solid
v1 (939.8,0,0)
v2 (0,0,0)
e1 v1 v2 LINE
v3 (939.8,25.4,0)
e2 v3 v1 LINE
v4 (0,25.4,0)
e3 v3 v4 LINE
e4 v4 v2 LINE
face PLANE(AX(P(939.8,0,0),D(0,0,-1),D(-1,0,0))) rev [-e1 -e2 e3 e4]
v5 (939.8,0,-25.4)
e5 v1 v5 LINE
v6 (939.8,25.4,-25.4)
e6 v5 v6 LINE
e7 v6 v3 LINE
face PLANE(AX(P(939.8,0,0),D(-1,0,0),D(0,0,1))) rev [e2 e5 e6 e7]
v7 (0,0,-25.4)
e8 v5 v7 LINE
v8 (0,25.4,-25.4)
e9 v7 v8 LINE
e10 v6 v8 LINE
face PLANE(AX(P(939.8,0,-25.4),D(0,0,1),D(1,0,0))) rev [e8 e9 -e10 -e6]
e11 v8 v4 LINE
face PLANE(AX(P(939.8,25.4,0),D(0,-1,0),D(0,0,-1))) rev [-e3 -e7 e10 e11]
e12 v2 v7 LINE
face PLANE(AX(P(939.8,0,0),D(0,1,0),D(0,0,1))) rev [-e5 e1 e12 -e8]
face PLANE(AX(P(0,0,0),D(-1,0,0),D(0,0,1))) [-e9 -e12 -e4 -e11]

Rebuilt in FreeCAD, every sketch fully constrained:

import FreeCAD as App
import Part
import Sketcher
Q = App.Units.Quantity

doc = App.newDocument("Part")
body = doc.addObject("PartDesign::Body", "Body")

# Sketch on YZ plane
sketch1 = body.newObject("Sketcher::SketchObject", "Sketch")
sketch1.AttachmentSupport = (doc.getObject("YZ_Plane"), [""])
sketch1.MapMode = "FlatFace"
sketch1.addGeometry([
    Part.LineSegment(App.Vector(25, 0, 0), App.Vector(0, 0, 0)),
    Part.LineSegment(App.Vector(0, 0, 0), App.Vector(0, -25, 0)),
    Part.LineSegment(App.Vector(0, -25, 0), App.Vector(25, -25, 0)),
    Part.LineSegment(App.Vector(25, -25, 0), App.Vector(25, 0, 0)),
], False)
sketch1.addConstraint([
    Sketcher.Constraint("Coincident", 0, 2, 1, 1),
    Sketcher.Constraint("Coincident", 1, 2, 2, 1),
    Sketcher.Constraint("Coincident", 2, 2, 3, 1),
    Sketcher.Constraint("Coincident", 3, 2, 0, 1),
    Sketcher.Constraint("Horizontal", 0),
    Sketcher.Constraint("Vertical", 1),
    Sketcher.Constraint("Horizontal", 2),
    Sketcher.Constraint("Vertical", 3),
    Sketcher.Constraint("Coincident", 0, 2, -1, 1),
    Sketcher.Constraint("Equal", 2, 1),
    Sketcher.Constraint("DistanceX", 0, 2, 0, 1, Q("1 in")),
])
pad1 = body.newObject("PartDesign::Pad", "Pad")
pad1.Profile = sketch1
pad1.Length = Q("37 in")

doc.recompute()
